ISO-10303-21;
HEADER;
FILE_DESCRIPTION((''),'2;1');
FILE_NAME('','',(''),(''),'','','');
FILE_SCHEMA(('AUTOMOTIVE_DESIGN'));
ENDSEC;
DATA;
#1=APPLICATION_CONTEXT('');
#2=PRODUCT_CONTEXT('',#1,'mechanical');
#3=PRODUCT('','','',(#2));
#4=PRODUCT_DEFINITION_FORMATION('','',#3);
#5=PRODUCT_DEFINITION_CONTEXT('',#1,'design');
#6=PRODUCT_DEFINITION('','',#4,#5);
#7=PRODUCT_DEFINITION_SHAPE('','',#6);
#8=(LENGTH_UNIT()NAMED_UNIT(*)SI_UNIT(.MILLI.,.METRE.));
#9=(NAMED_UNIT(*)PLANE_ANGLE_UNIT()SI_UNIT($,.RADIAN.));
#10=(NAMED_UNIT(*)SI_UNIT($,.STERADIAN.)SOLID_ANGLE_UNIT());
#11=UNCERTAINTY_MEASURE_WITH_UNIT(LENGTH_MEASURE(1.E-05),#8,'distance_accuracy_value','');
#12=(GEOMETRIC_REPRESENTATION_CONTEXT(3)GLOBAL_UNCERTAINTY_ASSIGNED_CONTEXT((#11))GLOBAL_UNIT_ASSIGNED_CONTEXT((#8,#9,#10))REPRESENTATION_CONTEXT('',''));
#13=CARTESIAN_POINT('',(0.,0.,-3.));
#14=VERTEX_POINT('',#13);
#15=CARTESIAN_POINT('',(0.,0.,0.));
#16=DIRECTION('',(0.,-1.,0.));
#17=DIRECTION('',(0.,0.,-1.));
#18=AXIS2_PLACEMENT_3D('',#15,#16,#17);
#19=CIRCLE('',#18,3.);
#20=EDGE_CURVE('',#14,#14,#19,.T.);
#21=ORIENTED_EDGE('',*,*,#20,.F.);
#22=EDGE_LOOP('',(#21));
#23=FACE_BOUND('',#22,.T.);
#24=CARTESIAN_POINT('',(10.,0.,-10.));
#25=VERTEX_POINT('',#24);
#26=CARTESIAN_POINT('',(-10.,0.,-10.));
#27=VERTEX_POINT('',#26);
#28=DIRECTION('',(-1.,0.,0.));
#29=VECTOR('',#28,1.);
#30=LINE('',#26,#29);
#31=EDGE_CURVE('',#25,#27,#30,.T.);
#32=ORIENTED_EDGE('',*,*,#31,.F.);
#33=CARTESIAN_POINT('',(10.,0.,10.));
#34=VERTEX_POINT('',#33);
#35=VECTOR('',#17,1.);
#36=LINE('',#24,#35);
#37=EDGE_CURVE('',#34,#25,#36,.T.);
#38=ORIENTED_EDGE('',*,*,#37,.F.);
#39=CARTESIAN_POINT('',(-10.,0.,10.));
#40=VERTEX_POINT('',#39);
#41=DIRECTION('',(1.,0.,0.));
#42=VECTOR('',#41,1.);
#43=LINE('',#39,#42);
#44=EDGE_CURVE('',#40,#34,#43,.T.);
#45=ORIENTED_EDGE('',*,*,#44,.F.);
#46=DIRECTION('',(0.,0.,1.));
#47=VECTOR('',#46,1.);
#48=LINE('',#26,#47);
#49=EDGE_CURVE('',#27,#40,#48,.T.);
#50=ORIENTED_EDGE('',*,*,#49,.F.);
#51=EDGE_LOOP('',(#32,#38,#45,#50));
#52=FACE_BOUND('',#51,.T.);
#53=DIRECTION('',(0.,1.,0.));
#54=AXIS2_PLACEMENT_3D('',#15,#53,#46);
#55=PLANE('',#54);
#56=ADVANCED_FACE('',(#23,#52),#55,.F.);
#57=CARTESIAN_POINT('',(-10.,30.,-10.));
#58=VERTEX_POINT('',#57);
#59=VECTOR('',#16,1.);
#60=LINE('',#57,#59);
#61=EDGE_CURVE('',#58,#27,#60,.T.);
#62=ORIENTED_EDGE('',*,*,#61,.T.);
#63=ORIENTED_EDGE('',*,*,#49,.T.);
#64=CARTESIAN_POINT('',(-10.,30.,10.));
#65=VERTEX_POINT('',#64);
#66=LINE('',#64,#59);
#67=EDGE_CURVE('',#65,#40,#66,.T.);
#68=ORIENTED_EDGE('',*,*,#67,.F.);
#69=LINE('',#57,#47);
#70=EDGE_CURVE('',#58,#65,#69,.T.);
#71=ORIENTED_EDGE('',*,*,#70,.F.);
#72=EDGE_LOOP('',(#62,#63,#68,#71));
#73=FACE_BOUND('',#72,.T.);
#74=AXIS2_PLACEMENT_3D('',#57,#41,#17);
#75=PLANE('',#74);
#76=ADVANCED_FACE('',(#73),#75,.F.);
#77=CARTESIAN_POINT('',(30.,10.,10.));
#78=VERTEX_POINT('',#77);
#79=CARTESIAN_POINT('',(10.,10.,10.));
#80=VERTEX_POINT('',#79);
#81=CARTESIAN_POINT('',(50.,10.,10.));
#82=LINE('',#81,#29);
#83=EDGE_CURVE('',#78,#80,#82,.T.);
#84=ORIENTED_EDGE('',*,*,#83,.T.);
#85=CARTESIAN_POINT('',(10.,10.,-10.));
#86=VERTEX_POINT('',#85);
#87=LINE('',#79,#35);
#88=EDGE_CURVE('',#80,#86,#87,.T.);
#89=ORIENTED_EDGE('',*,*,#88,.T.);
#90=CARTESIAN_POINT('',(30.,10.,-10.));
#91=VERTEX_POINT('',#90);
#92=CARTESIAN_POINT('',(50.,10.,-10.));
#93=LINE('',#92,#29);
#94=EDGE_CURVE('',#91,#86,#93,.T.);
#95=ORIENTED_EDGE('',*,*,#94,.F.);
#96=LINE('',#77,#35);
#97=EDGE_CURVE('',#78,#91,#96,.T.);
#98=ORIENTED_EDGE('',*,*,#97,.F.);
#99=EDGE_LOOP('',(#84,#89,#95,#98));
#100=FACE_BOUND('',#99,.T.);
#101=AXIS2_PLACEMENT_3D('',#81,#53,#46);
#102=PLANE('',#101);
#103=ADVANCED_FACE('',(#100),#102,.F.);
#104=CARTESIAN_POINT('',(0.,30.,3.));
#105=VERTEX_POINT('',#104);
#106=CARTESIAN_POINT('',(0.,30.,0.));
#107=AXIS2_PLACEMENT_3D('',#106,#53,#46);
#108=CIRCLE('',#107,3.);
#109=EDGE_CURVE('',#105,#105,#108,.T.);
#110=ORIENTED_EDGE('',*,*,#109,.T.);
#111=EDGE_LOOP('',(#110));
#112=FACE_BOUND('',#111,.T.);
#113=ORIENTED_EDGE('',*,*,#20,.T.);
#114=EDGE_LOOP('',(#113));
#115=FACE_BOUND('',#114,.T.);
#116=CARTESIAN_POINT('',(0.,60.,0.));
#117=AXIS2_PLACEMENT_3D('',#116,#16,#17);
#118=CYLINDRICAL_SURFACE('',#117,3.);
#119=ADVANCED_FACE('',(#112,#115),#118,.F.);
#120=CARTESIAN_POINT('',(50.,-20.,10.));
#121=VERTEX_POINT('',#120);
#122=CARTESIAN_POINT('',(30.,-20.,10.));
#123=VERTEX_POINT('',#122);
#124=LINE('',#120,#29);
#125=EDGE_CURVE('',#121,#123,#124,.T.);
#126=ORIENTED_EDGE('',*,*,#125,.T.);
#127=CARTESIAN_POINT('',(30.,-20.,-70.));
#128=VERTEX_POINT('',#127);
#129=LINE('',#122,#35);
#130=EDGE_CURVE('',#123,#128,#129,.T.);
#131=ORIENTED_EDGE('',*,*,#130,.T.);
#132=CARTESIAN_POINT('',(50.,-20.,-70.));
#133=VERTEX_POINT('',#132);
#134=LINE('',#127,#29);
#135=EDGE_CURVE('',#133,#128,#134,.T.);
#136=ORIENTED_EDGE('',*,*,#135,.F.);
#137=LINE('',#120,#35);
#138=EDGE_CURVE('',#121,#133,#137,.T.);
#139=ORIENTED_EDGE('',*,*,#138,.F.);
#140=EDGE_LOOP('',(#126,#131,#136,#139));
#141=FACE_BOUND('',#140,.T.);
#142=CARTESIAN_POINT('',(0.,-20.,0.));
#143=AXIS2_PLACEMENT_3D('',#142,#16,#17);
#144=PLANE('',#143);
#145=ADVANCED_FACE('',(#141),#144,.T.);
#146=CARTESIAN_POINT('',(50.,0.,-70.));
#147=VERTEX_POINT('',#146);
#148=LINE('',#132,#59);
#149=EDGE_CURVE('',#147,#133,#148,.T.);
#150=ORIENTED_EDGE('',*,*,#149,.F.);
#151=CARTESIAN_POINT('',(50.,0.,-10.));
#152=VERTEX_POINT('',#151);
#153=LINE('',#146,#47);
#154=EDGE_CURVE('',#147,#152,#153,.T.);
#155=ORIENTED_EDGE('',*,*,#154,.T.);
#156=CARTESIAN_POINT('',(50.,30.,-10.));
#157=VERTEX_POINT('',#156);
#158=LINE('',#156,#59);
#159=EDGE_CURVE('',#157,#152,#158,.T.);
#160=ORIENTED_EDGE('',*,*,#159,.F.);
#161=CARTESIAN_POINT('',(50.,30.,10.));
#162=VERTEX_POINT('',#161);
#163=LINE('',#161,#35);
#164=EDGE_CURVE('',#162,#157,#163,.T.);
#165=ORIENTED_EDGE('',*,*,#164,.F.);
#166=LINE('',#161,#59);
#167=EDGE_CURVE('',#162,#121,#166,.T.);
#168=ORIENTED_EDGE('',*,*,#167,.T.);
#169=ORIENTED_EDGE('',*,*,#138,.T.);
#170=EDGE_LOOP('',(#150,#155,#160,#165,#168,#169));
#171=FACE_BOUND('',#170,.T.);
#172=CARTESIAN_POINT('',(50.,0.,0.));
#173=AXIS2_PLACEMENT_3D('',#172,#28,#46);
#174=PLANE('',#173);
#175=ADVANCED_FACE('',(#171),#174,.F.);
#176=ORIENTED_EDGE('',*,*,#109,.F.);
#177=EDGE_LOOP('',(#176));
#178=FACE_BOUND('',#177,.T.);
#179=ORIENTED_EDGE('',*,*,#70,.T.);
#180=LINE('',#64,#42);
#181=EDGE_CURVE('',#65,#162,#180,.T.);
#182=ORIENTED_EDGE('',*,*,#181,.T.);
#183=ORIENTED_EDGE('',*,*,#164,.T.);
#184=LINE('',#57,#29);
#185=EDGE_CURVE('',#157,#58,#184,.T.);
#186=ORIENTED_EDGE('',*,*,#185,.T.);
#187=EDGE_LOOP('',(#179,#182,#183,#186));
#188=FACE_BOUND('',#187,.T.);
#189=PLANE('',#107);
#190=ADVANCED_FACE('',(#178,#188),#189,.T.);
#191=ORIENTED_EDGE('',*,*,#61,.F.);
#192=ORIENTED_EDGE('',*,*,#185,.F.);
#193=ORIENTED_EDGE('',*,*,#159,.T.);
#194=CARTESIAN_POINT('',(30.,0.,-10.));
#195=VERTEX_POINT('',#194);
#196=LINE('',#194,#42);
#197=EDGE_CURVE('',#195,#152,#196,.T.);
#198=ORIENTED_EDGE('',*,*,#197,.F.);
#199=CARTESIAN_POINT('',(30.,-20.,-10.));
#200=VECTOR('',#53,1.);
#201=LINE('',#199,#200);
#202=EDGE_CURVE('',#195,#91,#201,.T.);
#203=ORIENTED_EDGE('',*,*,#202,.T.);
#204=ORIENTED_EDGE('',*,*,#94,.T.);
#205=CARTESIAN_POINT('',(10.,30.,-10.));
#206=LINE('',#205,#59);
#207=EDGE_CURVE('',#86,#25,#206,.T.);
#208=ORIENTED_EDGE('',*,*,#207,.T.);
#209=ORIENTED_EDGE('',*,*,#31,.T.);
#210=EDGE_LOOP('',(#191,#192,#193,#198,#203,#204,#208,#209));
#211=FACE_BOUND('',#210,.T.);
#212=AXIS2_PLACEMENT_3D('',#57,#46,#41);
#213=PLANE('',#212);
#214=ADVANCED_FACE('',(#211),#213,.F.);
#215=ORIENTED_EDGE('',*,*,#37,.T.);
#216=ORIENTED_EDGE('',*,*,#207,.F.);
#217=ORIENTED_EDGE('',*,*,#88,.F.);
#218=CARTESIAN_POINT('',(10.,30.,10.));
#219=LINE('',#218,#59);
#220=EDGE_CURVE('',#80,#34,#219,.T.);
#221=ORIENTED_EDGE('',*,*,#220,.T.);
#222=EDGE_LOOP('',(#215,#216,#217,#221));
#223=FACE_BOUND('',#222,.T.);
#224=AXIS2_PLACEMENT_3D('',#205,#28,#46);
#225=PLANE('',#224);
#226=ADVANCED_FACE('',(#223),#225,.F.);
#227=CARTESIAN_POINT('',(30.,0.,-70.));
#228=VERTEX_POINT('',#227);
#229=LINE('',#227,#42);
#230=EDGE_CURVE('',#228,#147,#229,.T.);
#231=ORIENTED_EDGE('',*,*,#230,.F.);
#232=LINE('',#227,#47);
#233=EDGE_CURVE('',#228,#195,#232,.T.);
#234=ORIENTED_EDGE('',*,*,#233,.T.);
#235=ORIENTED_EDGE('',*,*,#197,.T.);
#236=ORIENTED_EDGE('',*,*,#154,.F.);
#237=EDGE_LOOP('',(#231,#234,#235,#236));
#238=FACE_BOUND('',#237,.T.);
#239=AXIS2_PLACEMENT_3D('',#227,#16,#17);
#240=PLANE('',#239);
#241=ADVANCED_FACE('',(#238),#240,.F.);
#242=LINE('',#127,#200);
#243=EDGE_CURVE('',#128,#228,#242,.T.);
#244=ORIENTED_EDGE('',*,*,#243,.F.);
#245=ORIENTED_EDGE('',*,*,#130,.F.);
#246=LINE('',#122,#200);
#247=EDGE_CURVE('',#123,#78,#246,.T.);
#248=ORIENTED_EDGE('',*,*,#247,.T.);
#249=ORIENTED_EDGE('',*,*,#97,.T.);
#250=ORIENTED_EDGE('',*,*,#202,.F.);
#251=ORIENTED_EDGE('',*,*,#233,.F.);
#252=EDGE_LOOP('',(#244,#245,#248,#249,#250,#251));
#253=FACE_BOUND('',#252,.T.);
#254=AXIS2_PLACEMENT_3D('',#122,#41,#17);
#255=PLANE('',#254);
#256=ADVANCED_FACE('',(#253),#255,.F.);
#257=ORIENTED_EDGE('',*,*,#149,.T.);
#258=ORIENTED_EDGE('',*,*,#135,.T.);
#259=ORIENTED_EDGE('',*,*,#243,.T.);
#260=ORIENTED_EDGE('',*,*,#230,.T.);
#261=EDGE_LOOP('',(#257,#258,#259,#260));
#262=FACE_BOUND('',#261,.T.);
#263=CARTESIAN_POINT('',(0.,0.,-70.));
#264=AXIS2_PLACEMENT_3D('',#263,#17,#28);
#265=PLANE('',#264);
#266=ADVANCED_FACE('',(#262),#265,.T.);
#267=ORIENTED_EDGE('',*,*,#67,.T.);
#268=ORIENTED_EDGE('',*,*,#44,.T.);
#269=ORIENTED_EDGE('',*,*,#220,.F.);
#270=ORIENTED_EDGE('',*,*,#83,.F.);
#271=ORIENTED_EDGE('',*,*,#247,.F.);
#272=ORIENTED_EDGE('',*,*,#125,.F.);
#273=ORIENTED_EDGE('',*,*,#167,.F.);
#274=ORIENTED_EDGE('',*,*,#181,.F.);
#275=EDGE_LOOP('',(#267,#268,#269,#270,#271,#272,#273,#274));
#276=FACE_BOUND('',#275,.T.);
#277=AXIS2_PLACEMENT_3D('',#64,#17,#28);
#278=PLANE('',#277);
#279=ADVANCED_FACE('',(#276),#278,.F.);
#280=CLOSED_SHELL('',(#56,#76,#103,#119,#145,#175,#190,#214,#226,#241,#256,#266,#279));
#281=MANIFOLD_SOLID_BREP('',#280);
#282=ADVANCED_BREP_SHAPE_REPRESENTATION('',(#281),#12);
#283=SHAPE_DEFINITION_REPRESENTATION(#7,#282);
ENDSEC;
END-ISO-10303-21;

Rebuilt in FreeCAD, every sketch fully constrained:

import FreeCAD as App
import Part
import Sketcher

V = App.Vector


def add_polygon(sketch, points):
    """Adds a closed chain of lines whose ends are joined by coincident constraints."""
    first, n = sketch.GeometryCount, len(points)
    for a, b in zip(points, points[1:] + points[:1]):
        sketch.addGeometry(Part.LineSegment(App.Vector(*a, 0), App.Vector(*b, 0)), False)
    for i in range(n):
        sketch.addConstraint(Sketcher.Constraint("Coincident", first + i, 2, first + (i + 1) % n, 1))

doc = App.newDocument("Part")
params = doc.addObject("Spreadsheet::Sheet", "Params")
for row, (alias, value) in enumerate([
    ("sketch1_width", "20 mm"),
    ("pad1_length", "30 mm"),
    ("sketch2_width", "20 mm"),
    ("pad2_length", "40 mm"),
    ("sketch3_width", "20 mm"),
    ("pad3_length", "30 mm"),
    ("sketch4_width", "20 mm"),
    ("pad4_length", "60 mm"),
    ("sketch5_diameter", "6 mm"),
    ("pocket1_length", "60 mm"),
], start=1):
    params.set(f"A{row}", alias)
    params.set(f"B{row}", "=" + value)
    params.setAlias(f"B{row}", alias)

body = doc.addObject("PartDesign::Body", "Body")

# Sketch on XZ plane
sketch1 = body.newObject("Sketcher::SketchObject", "Sketch")
sketch1.AttachmentSupport = (doc.getObject("XZ_Plane"), [""])
sketch1.MapMode = "FlatFace"
add_polygon(sketch1, [(-10, -10), (-10, 10), (10, 10), (10, -10)])  # lines 0-3
sketch1.addConstraint(Sketcher.Constraint("Vertical", 0))
sketch1.addConstraint(Sketcher.Constraint("Horizontal", 1))
sketch1.addConstraint(Sketcher.Constraint("Vertical", 2))
sketch1.addConstraint(Sketcher.Constraint("Horizontal", 3))
sketch1.addConstraint(Sketcher.Constraint("Symmetric", 0, 2, 2, 2, -1, 1))
sketch1.addConstraint(Sketcher.Constraint("Equal", 3, 0))
sketch1.addConstraint(Sketcher.Constraint("DistanceX", 1, 1, 1, 2, 20.0))
sketch1.setExpression("Constraints[10]", "Params.sketch1_width")
pad1 = body.newObject("PartDesign::Pad", "Pad")
pad1.Profile = sketch1
pad1.setExpression("Length", "Params.pad1_length")
pad1.Reversed = True

# Sketch on YZ plane
sketch2 = body.newObject("Sketcher::SketchObject", "Sketch001")
sketch2.AttachmentSupport = (doc.getObject("YZ_Plane"), [""])
sketch2.MapMode = "FlatFace"
sketch2.AttachmentOffset = App.Placement(V(0, 0, 10), App.Rotation())
add_polygon(sketch2, [(30, 10), (10, 10), (10, -10), (30, -10)])  # lines 0-3
sketch2.addConstraint(Sketcher.Constraint("Horizontal", 0))
sketch2.addConstraint(Sketcher.Constraint("Vertical", 1))
sketch2.addConstraint(Sketcher.Constraint("Horizontal", 2))
sketch2.addConstraint(Sketcher.Constraint("Vertical", 3))
sketch2.addConstraint(Sketcher.Constraint("Equal", 2, 1))
sketch2.addConstraint(Sketcher.Constraint("DistanceX", 0, 2, 0, 1, 20.0))
sketch2.addConstraint(Sketcher.Constraint("DistanceX", -1, 1, 0, 2, 10.0))
sketch2.addConstraint(Sketcher.Constraint("DistanceY", -1, 1, 0, 2, 10.0))
sketch2.setExpression("Constraints[9]", "Params.sketch2_width")
pad2 = body.newObject("PartDesign::Pad", "Pad001")
pad2.Profile = sketch2
pad2.setExpression("Length", "Params.pad2_length")

# Sketch on XZ plane
sketch3 = body.newObject("Sketcher::SketchObject", "Sketch002")
sketch3.AttachmentSupport = (doc.getObject("XZ_Plane"), [""])
sketch3.MapMode = "FlatFace"
sketch3.AttachmentOffset = App.Placement(V(0, 0, -10), App.Rotation())
add_polygon(sketch3, [(30, 10), (30, -10), (50, -10), (50, 10)])  # lines 0-3
sketch3.addConstraint(Sketcher.Constraint("Vertical", 0))
sketch3.addConstraint(Sketcher.Constraint("Horizontal", 1))
sketch3.addConstraint(Sketcher.Constraint("Vertical", 2))
sketch3.addConstraint(Sketcher.Constraint("Horizontal", 3))
sketch3.addConstraint(Sketcher.Constraint("Equal", 3, 0))
sketch3.addConstraint(Sketcher.Constraint("DistanceX", 1, 1, 1, 2, 20.0))
sketch3.addConstraint(Sketcher.Constraint("DistanceX", -1, 1, 0, 2, 30.0))
sketch3.addConstraint(Sketcher.Constraint("DistanceY", 0, 2, -1, 1, 10.0))
sketch3.setExpression("Constraints[9]", "Params.sketch3_width")
pad3 = body.newObject("PartDesign::Pad", "Pad002")
pad3.Profile = sketch3
pad3.setExpression("Length", "Params.pad3_length")

# Sketch on XY plane
sketch4 = body.newObject("Sketcher::SketchObject", "Sketch003")
sketch4.AttachmentSupport = (doc.getObject("XY_Plane"), [""])
sketch4.MapMode = "FlatFace"
sketch4.AttachmentOffset = App.Placement(V(0, 0, -10), App.Rotation())
add_polygon(sketch4, [(50, 0), (50, -20), (30, -20), (30, 0)])  # lines 0-3
sketch4.addConstraint(Sketcher.Constraint("Vertical", 0))
sketch4.addConstraint(Sketcher.Constraint("Horizontal", 1))
sketch4.addConstraint(Sketcher.Constraint("Vertical", 2))
sketch4.addConstraint(Sketcher.Constraint("Horizontal", 3))
sketch4.addConstraint(Sketcher.Constraint("PointOnObject", 2, 2, -1))
sketch4.addConstraint(Sketcher.Constraint("Equal", 3, 0))
sketch4.addConstraint(Sketcher.Constraint("DistanceX", 1, 2, 1, 1, 20.0))
sketch4.addConstraint(Sketcher.Constraint("DistanceX", -1, 1, 0, 2, 50.0))
sketch4.setExpression("Constraints[10]", "Params.sketch4_width")
pad4 = body.newObject("PartDesign::Pad", "Pad003")
pad4.Profile = sketch4
pad4.setExpression("Length", "Params.pad4_length")
pad4.Reversed = True

# Sketch on XZ plane
sketch5 = body.newObject("Sketcher::SketchObject", "Sketch004")
sketch5.AttachmentSupport = (doc.getObject("XZ_Plane"), [""])
sketch5.MapMode = "FlatFace"
sketch5.addGeometry(Part.Circle(V(0, 0, 0), V(0, 0, 1), 3), False)
sketch5.addConstraint(Sketcher.Constraint("Coincident", 0, 3, -1, 1))
sketch5.addConstraint(Sketcher.Constraint("Diameter", 0, 6.0))
sketch5.setExpression("Constraints[1]", "Params.sketch5_diameter")
pocket1 = body.newObject("PartDesign::Pocket", "Pocket")
pocket1.Profile = sketch5
pocket1.setExpression("Length", "Params.pocket1_length")

doc.recompute()
